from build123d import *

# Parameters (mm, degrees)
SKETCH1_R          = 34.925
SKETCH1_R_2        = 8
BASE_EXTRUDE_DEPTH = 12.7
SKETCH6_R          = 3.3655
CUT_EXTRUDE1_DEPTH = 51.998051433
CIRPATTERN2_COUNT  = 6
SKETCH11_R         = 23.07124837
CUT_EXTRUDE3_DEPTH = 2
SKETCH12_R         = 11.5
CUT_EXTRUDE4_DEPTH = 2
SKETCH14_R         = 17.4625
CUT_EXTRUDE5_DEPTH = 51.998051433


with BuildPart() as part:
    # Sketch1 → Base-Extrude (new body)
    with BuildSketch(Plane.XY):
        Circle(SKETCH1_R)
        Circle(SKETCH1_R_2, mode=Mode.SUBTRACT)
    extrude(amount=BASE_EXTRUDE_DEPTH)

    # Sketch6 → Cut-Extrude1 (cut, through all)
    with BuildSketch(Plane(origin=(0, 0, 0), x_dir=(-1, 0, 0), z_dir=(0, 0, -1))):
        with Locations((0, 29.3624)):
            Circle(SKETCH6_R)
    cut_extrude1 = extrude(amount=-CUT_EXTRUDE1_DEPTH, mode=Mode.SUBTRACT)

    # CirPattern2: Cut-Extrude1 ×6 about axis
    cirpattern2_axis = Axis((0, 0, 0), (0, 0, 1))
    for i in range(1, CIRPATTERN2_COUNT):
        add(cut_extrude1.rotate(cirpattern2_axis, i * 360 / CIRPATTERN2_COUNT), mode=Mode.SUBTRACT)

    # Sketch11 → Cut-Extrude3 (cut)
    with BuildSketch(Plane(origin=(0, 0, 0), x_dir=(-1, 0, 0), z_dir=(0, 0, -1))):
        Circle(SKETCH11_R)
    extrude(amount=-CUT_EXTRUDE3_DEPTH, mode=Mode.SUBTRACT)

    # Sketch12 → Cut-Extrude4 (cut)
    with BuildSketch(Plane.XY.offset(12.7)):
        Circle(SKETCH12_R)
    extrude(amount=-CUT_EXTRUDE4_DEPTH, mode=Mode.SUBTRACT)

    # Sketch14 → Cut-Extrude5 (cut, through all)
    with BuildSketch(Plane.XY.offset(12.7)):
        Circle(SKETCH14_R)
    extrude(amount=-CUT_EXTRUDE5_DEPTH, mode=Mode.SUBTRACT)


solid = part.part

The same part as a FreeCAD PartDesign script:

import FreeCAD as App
import Part
import Sketcher

V = App.Vector
Q = App.Units.Quantity

doc = App.newDocument("Part")
body = doc.addObject("PartDesign::Body", "Body")

sketch1 = body.newObject("Sketcher::SketchObject", "Sketch")
sketch1.AttachmentSupport = (doc.getObject("XY_Plane"), [""])
sketch1.MapMode = "FlatFace"
sketch1.addGeometry([
    Part.Circle(V(0, 0, 0), V(0, 0, 1), 34.925),
    Part.Circle(V(0, 0, 0), V(0, 0, 1), 8),
], False)
sketch1.addConstraint([
    Sketcher.Constraint("Coincident", 0, 3, -1, 1),
    Sketcher.Constraint("Coincident", 1, 3, -1, 1),
    Sketcher.Constraint("Diameter", 0, Q("2.75 in")),
    Sketcher.Constraint("Diameter", 1, 16.0),
])
pad1 = body.newObject("PartDesign::Pad", "Pad")
pad1.Profile = sketch1
pad1.Length = Q("0.5 in")

sketch2 = body.newObject("Sketcher::SketchObject", "Sketch001")
sketch2.AttachmentSupport = (doc.getObject("XY_Plane"), [""])
sketch2.MapMode = "FlatFace"
sketch2.addGeometry(Part.Circle(V(0, 29.3624, 0), V(0, 0, 1), 3.3655), False)
sketch2.addConstraint([
    Sketcher.Constraint("PointOnObject", 0, 3, -2),
    Sketcher.Constraint("Diameter", 0, Q("0.265 in")),
    Sketcher.Constraint("DistanceY", -1, 1, 0, 3, Q("1.156 in")),
])
pocket1 = body.newObject("PartDesign::Pocket", "Pocket")
pocket1.Profile = sketch2
pocket1.Type = "ThroughAll"
pocket1.Reversed = True
doc.recompute()

polarpattern = body.newObject("PartDesign::PolarPattern", "PolarPattern")
polarpattern.Originals = [pocket1]
polarpattern.Axis = (doc.getObject("Z_Axis"), [""])
polarpattern.Angle = 360
polarpattern.Occurrences = 6
body.Tip = polarpattern

sketch3 = body.newObject("Sketcher::SketchObject", "Sketch002")
sketch3.AttachmentSupport = (doc.getObject("XY_Plane"), [""])
sketch3.MapMode = "FlatFace"
sketch3.addGeometry(Part.Circle(V(0, 0, 0), V(0, 0, 1), 23.071248), False)
sketch3.addConstraint([
    Sketcher.Constraint("Coincident", 0, 3, -1, 1),
    Sketcher.Constraint("Diameter", 0, 46.142497),
])
pocket2 = body.newObject("PartDesign::Pocket", "Pocket001")
pocket2.Profile = sketch3
pocket2.Length = 2
pocket2.Reversed = True

sketch4 = body.newObject("Sketcher::SketchObject", "Sketch003")
sketch4.AttachmentSupport = (doc.getObject("XY_Plane"), [""])
sketch4.MapMode = "FlatFace"
sketch4.AttachmentOffset = App.Placement(V(0, 0, 0.5 * 25.4), App.Rotation())
sketch4.addGeometry(Part.Circle(V(0, 0, 0), V(0, 0, 1), 11.5), False)
sketch4.addConstraint([
    Sketcher.Constraint("Coincident", 0, 3, -1, 1),
    Sketcher.Constraint("Diameter", 0, 23.0),
])
pocket3 = body.newObject("PartDesign::Pocket", "Pocket002")
pocket3.Profile = sketch4
pocket3.Length = 2

sketch5 = body.newObject("Sketcher::SketchObject", "Sketch004")
sketch5.AttachmentSupport = (doc.getObject("XY_Plane"), [""])
sketch5.MapMode = "FlatFace"
sketch5.AttachmentOffset = App.Placement(V(0, 0, 0.5 * 25.4), App.Rotation())
sketch5.addGeometry(Part.Circle(V(0, 0, 0), V(0, 0, 1), 17.4625), False)
sketch5.addConstraint([
    Sketcher.Constraint("Coincident", 0, 3, -1, 1),
    Sketcher.Constraint("Diameter", 0, Q("1.375 in")),
])
pocket4 = body.newObject("PartDesign::Pocket", "Pocket003")
pocket4.Profile = sketch5
pocket4.Type = "ThroughAll"

doc.recompute()
